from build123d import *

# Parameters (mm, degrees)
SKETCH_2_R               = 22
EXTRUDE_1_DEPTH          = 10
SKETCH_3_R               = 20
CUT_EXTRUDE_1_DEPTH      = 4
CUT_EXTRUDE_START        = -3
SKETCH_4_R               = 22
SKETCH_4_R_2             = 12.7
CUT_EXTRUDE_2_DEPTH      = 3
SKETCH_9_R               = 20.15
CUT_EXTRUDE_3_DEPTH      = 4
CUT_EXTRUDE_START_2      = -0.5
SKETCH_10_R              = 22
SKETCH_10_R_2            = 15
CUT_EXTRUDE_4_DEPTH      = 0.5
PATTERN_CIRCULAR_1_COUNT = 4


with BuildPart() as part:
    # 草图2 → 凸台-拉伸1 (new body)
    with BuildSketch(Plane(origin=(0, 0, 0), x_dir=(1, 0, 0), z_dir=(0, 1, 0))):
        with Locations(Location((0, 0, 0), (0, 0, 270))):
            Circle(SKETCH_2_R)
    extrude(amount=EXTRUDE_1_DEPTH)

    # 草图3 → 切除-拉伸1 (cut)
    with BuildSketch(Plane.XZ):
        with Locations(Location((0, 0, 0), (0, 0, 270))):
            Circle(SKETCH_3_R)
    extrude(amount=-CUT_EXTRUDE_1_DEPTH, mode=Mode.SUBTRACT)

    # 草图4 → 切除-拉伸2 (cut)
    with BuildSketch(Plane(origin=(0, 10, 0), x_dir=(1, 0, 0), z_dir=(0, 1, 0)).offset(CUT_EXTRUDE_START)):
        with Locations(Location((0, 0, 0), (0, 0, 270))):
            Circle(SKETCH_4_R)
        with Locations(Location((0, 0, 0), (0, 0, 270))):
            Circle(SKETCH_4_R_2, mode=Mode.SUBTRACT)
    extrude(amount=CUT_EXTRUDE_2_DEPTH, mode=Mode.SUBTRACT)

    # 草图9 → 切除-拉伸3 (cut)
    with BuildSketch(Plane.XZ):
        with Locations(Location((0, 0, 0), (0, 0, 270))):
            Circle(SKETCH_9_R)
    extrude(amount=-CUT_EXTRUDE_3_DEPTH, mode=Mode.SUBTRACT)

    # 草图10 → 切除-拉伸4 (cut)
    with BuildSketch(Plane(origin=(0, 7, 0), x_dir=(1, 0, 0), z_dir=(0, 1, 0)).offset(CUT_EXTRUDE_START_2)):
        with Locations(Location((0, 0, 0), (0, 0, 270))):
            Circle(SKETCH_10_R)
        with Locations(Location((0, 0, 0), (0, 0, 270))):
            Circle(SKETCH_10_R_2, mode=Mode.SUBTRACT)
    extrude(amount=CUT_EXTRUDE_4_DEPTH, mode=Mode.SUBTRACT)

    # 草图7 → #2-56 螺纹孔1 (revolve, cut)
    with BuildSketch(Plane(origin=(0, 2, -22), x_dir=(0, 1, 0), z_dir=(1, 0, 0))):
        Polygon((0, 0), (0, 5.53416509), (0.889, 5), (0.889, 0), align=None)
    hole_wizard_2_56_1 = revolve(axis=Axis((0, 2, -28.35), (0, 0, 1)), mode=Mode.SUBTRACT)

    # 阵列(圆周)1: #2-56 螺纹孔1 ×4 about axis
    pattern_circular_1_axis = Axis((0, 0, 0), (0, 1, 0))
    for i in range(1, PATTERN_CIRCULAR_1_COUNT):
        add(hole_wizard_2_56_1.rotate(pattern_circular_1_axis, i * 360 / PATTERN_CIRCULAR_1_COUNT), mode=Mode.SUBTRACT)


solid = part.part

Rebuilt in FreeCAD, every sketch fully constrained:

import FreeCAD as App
import Part
import Sketcher

V = App.Vector
Q = App.Units.Quantity

doc = App.newDocument("Part")
body = doc.addObject("PartDesign::Body", "Body")

sketch1 = body.newObject("Sketcher::SketchObject", "Sketch")
sketch1.AttachmentSupport = (doc.getObject("XZ_Plane"), [""])
sketch1.MapMode = "FlatFace"
sketch1.addGeometry(Part.Circle(V(0, 0, 0), V(0, 0, 1), 22), False)
sketch1.addConstraint(Sketcher.Constraint("Coincident", 0, 3, -1, 1))
sketch1.addConstraint(Sketcher.Constraint("Diameter", 0, Q("44 mm")))
pad1 = body.newObject("PartDesign::Pad", "Pad")
pad1.Profile = sketch1
pad1.Length = 10
pad1.Reversed = True

sketch2 = body.newObject("Sketcher::SketchObject", "Sketch001")
sketch2.AttachmentSupport = (doc.getObject("XZ_Plane"), [""])
sketch2.MapMode = "FlatFace"
sketch2.addGeometry(Part.Circle(V(0, 0, 0), V(0, 0, 1), 20), False)
sketch2.addConstraint(Sketcher.Constraint("Coincident", 0, 3, -1, 1))
sketch2.addConstraint(Sketcher.Constraint("Diameter", 0, Q("40 mm")))
pocket1 = body.newObject("PartDesign::Pocket", "Pocket")
pocket1.Profile = sketch2
pocket1.Length = 4

sketch3 = body.newObject("Sketcher::SketchObject", "Sketch002")
sketch3.AttachmentSupport = (doc.getObject("XZ_Plane"), [""])
sketch3.MapMode = "FlatFace"
sketch3.AttachmentOffset = App.Placement(V(0, 0, -7), App.Rotation())
sketch3.addGeometry(Part.Circle(V(0, 0, 0), V(0, 0, 1), 22), False)
sketch3.addGeometry(Part.Circle(V(0, 0, 0), V(0, 0, 1), 13), False)
sketch3.addConstraint(Sketcher.Constraint("Coincident", 0, 3, -1, 1))
sketch3.addConstraint(Sketcher.Constraint("Coincident", 1, 3, -1, 1))
sketch3.addConstraint(Sketcher.Constraint("Diameter", 0, Q("44 mm")))
sketch3.addConstraint(Sketcher.Constraint("Diameter", 1, Q("25.4 mm")))
pocket2 = body.newObject("PartDesign::Pocket", "Pocket001")
pocket2.Profile = sketch3
pocket2.Length = 3

sketch4 = body.newObject("Sketcher::SketchObject", "Sketch003")
sketch4.AttachmentSupport = (doc.getObject("XZ_Plane"), [""])
sketch4.MapMode = "FlatFace"
sketch4.addGeometry(Part.Circle(V(0, 0, 0), V(0, 0, 1), 20), False)
sketch4.addConstraint(Sketcher.Constraint("Coincident", 0, 3, -1, 1))
sketch4.addConstraint(Sketcher.Constraint("Diameter", 0, Q("40.3 mm")))
pocket3 = body.newObject("PartDesign::Pocket", "Pocket002")
pocket3.Profile = sketch4
pocket3.Length = 4

sketch5 = body.newObject("Sketcher::SketchObject", "Sketch004")
sketch5.AttachmentSupport = (doc.getObject("XZ_Plane"), [""])
sketch5.MapMode = "FlatFace"
sketch5.AttachmentOffset = App.Placement(V(0, 0, -6.5), App.Rotation())
sketch5.addGeometry(Part.Circle(V(0, 0, 0), V(0, 0, 1), 22), False)
sketch5.addGeometry(Part.Circle(V(0, 0, 0), V(0, 0, 1), 15), False)
sketch5.addConstraint(Sketcher.Constraint("Coincident", 0, 3, -1, 1))
sketch5.addConstraint(Sketcher.Constraint("Coincident", 1, 3, -1, 1))
sketch5.addConstraint(Sketcher.Constraint("Diameter", 0, Q("44 mm")))
sketch5.addConstraint(Sketcher.Constraint("Diameter", 1, Q("30 mm")))
pocket4 = body.newObject("PartDesign::Pocket", "Pocket003")
pocket4.Profile = sketch5
pocket4.Length = 0.5

sketch6 = body.newObject("Sketcher::SketchObject", "Sketch005")
sketch6.AttachmentSupport = (doc.getObject("YZ_Plane"), [""])
sketch6.MapMode = "FlatFace"
sketch6.addGeometry(Part.LineSegment(V(2, -16.5, 0), V(2, -22, 0)), False)
sketch6.addGeometry(Part.LineSegment(V(2, -22, 0), V(2.9, -22, 0)), False)
sketch6.addGeometry(Part.LineSegment(V(2.9, -22, 0), V(2.9, -17, 0)), False)
sketch6.addGeometry(Part.LineSegment(V(2.9, -17, 0), V(2, -16.5, 0)), False)
sketch6.addGeometry(Part.LineSegment(V(2, -22, 0), V(2, -16.5, 0)), True)
sketch6.addConstraint(Sketcher.Constraint("Coincident", 0, 2, 1, 1))
sketch6.addConstraint(Sketcher.Constraint("Coincident", 1, 2, 2, 1))
sketch6.addConstraint(Sketcher.Constraint("Coincident", 2, 2, 3, 1))
sketch6.addConstraint(Sketcher.Constraint("Coincident", 3, 2, 0, 1))
sketch6.addConstraint(Sketcher.Constraint("Vertical", 0))
sketch6.addConstraint(Sketcher.Constraint("Horizontal", 1))
sketch6.addConstraint(Sketcher.Constraint("Vertical", 2))
sketch6.addConstraint(Sketcher.Constraint("Vertical", 4))
sketch6.addConstraint(Sketcher.Constraint("Coincident", 4, 1, 0, 2))
sketch6.addConstraint(Sketcher.Constraint("Equal", 0, 4))
sketch6.addConstraint(Sketcher.Constraint("DistanceY", 2, 1, 2, 2, Q("5 mm")))
sketch6.addConstraint(Sketcher.Constraint("Angle", 3, Q("149 deg")))
sketch6.addConstraint(Sketcher.Constraint("DistanceX", -1, 1, 0, 2, Q("2 mm")))
sketch6.addConstraint(Sketcher.Constraint("DistanceY", 0, 2, -1, 1, Q("22 mm")))
sketch6.addConstraint(Sketcher.Constraint("DistanceX", 1, 1, 1, 2, Q("0.889 mm")))
groove = body.newObject("PartDesign::Groove", "Groove")
groove.Profile = sketch6
groove.ReferenceAxis = (sketch6, ["Axis0"])
groove.Angle = 360
doc.recompute()

polarpattern = body.newObject("PartDesign::PolarPattern", "PolarPattern")
polarpattern.Originals = [groove]
polarpattern.Axis = (doc.getObject("Y_Axis"), [""])
polarpattern.Angle = 360
polarpattern.Occurrences = 4
body.Tip = polarpattern

doc.recompute()
